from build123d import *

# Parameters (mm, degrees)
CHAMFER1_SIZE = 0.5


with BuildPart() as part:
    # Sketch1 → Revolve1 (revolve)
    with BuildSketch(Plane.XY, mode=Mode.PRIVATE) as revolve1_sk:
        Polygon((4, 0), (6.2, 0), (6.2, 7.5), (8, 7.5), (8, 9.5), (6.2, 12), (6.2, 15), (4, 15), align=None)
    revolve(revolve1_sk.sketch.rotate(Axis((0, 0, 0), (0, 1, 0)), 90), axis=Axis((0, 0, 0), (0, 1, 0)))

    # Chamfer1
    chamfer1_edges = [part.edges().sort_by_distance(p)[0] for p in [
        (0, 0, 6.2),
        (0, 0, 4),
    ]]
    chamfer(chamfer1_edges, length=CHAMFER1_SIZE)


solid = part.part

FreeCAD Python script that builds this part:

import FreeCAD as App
import Part
import Sketcher
from FreeCAD import Vector
Q = App.Units.Quantity


def edges_at(feature, points):
    """Names of the edges that pass closest to the given points."""
    edges = feature.Shape.Edges
    near = lambda p: min(range(len(edges)), key=lambda i: edges[i].distToShape(Part.Vertex(*p))[0])
    return sorted({f"Edge{near(p) + 1}" for p in points})

doc = App.newDocument("Part")
body = doc.addObject("PartDesign::Body", "Body")

# Sketch on XY plane
sketch1 = body.newObject("Sketcher::SketchObject", "Sketch")
sketch1.AttachmentSupport = (doc.getObject("XY_Plane"), [""])
sketch1.MapMode = "FlatFace"
sketch1.addGeometry([
    Part.LineSegment(Vector(4, 0, 0), Vector(6.2, 0, 0)),  # 0
    Part.LineSegment(Vector(6.2, 0, 0), Vector(6.2, 7.5, 0)),  # 1
    Part.LineSegment(Vector(6.2, 7.5, 0), Vector(8, 7.5, 0)),  # 2
    Part.LineSegment(Vector(8, 7.5, 0), Vector(8, 9.5, 0)),  # 3
    Part.LineSegment(Vector(8, 9.5, 0), Vector(6.2, 12, 0)),  # 4
    Part.LineSegment(Vector(6.2, 12, 0), Vector(6.2, 15, 0)),  # 5
    Part.LineSegment(Vector(6.2, 15, 0), Vector(4, 15, 0)),  # 6
    Part.LineSegment(Vector(4, 15, 0), Vector(4, 0, 0)),  # 7
], False)
sketch1.addConstraint([
    Sketcher.Constraint("Coincident", 0, 2, 1, 1),
    Sketcher.Constraint("Coincident", 1, 2, 2, 1),
    Sketcher.Constraint("Coincident", 2, 2, 3, 1),
    Sketcher.Constraint("Coincident", 3, 2, 4, 1),
    Sketcher.Constraint("Coincident", 4, 2, 5, 1),
    Sketcher.Constraint("Coincident", 5, 2, 6, 1),
    Sketcher.Constraint("Coincident", 6, 2, 7, 1),
    Sketcher.Constraint("Coincident", 7, 2, 0, 1),
    Sketcher.Constraint("Horizontal", 0),
    Sketcher.Constraint("Vertical", 1),
    Sketcher.Constraint("Horizontal", 2),
    Sketcher.Constraint("Vertical", 3),
    Sketcher.Constraint("Vertical", 5),
    Sketcher.Constraint("Horizontal", 6),
    Sketcher.Constraint("Vertical", 7),
    Sketcher.Constraint("PointOnObject", 0, 2, -1),
    Sketcher.Constraint("Vertical", 1, 2, 4, 2),
    Sketcher.Constraint("DistanceY", 3, 1, 3, 2, Q("2 mm")),
    Sketcher.Constraint("DistanceY", 5, 1, 5, 2, Q("3 mm")),
    Sketcher.Constraint("DistanceY", 7, 2, 7, 1, Q("15 mm")),
    Sketcher.Constraint("DistanceX", 0, 1, 0, 2, Q("2.2 mm")),
    Sketcher.Constraint("DistanceX", 2, 1, 2, 2, Q("1.8 mm")),
    Sketcher.Constraint("DistanceY", 1, 1, 1, 2, Q("7.5 mm")),
    Sketcher.Constraint("DistanceX", -1, 1, 2, 2, Q("8 mm")),
])
revolution = body.newObject("PartDesign::Revolution", "Revolution")
revolution.Profile = sketch1
revolution.ReferenceAxis = (sketch1, ["V_Axis"])
revolution.Angle = 360
doc.recompute()

chamfer = body.newObject("PartDesign::Chamfer", "Chamfer")
chamfer.Base = (revolution, edges_at(revolution, [(0, 0, 6.2), (0, 0, 4)]))
chamfer.Size = 0.5

doc.recompute()
